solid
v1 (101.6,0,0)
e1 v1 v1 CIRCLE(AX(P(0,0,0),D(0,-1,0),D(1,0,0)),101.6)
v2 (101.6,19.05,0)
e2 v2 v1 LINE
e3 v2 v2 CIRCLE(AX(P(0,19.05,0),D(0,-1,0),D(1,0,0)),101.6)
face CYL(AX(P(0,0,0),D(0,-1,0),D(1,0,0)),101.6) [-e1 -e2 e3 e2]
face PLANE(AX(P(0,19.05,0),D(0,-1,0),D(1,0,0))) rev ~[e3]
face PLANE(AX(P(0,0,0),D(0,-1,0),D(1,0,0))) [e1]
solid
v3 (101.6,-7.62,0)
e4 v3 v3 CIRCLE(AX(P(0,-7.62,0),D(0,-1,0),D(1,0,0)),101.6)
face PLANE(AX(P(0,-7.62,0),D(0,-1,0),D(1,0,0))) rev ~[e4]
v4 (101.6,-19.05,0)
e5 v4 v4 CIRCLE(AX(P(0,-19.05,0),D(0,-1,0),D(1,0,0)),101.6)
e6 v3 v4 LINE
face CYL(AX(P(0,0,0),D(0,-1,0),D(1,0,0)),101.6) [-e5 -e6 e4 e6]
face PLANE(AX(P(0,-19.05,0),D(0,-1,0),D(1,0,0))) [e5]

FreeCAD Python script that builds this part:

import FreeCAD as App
import Part
import Sketcher
from FreeCAD import Vector
Q = App.Units.Quantity

doc = App.newDocument("Part")
body = doc.addObject("PartDesign::Body", "Body")
body.AllowCompound = True

sketch1 = body.newObject("Sketcher::SketchObject", "Sketch")
sketch1.AttachmentSupport = (doc.getObject("XZ_Plane"), [""])
sketch1.MapMode = "FlatFace"
sketch1.addGeometry(Part.Circle(Vector(0, 0, 0), Vector(0, 0, 1), 102), False)
sketch1.addConstraint(Sketcher.Constraint("Coincident", 0, 3, -1, 1))
sketch1.addConstraint(Sketcher.Constraint("Diameter", 0, Q("8 in")))
pad1 = body.newObject("PartDesign::Pad", "Pad")
pad1.Profile = sketch1
pad1.Length = Q("1.5 in")
pad1.Midplane = True

sketch2 = body.newObject("Sketcher::SketchObject", "Sketch001")
sketch2.AttachmentSupport = (doc.getObject("XZ_Plane"), [""])
sketch2.MapMode = "FlatFace"
sketch2.addGeometry(Part.Circle(Vector(0, 0, 0), Vector(0, 0, 1), 102), False)
sketch2.addConstraint(Sketcher.Constraint("Coincident", 0, 3, -1, 1))
sketch2.addConstraint(Sketcher.Constraint("Diameter", 0, Q("8 in")))
pocket1 = body.newObject("PartDesign::Pocket", "Pocket")
pocket1.Profile = sketch2
pocket1.Length = Q("0.3 in")
pocket1.Reversed = True

doc.recompute()
